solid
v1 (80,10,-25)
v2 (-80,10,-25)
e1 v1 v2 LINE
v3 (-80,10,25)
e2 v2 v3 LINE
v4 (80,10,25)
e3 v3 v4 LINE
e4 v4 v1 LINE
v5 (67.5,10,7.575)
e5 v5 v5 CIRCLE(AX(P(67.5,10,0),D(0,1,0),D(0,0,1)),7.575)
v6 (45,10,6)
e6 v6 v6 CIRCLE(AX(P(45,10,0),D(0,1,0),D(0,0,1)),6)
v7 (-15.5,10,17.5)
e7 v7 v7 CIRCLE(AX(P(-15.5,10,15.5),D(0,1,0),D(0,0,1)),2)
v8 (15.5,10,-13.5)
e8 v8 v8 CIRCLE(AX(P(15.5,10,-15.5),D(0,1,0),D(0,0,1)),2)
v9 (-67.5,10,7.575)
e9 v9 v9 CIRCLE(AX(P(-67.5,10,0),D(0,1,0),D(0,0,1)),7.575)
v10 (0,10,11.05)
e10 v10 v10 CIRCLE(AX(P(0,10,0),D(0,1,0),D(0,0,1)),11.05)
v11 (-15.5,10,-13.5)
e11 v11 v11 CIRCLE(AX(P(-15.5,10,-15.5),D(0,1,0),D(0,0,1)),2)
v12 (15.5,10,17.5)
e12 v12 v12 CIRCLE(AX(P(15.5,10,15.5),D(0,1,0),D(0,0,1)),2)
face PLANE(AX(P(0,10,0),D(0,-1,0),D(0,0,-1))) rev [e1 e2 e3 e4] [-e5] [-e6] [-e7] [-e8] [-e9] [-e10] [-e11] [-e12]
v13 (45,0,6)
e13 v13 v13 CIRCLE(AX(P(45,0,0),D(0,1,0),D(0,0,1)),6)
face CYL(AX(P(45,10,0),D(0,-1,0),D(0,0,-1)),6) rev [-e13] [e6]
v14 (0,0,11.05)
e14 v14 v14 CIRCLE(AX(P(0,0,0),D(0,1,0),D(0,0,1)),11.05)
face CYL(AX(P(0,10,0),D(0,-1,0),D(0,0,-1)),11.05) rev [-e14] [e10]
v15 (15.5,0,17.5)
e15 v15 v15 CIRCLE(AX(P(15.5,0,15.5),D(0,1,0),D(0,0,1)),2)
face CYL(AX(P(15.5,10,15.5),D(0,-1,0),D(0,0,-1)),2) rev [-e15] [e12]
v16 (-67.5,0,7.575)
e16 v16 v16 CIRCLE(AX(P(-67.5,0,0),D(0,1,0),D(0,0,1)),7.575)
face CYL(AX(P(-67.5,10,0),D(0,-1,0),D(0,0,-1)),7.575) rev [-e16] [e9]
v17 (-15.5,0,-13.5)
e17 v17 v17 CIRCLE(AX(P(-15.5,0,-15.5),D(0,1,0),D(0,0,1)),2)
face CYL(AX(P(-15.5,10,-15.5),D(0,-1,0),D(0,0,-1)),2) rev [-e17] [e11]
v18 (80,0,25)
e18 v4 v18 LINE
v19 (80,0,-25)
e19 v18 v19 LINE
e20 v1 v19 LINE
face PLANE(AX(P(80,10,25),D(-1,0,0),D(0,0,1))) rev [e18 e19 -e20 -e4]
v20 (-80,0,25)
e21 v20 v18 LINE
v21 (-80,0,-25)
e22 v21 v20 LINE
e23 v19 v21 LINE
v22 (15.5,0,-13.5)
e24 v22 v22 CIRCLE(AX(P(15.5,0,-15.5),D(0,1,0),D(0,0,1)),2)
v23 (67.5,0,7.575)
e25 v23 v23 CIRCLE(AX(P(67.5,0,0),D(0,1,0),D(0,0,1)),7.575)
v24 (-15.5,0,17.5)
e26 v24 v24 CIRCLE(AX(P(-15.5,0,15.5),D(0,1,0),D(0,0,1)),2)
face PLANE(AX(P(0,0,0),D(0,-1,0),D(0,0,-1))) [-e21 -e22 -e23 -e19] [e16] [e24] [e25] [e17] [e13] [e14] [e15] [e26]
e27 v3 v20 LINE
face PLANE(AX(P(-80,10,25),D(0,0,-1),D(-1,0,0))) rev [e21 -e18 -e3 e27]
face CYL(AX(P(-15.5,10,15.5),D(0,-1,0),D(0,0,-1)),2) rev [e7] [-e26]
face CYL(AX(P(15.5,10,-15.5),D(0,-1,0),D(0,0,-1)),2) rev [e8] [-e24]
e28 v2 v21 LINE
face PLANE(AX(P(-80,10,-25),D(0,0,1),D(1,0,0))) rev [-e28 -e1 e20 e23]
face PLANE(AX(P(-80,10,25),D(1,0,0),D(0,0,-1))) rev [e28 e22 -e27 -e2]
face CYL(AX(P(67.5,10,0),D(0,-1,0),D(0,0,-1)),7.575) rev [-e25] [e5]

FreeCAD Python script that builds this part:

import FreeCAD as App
import Part
import Sketcher
Q = App.Units.Quantity


def add_polygon(sketch, points):
    """Adds a closed chain of lines whose ends are joined by coincident constraints."""
    first, n = sketch.GeometryCount, len(points)
    for a, b in zip(points, points[1:] + points[:1]):
        sketch.addGeometry(Part.LineSegment(App.Vector(*a, 0), App.Vector(*b, 0)), False)
    for i in range(n):
        sketch.addConstraint(Sketcher.Constraint("Coincident", first + i, 2, first + (i + 1) % n, 1))

doc = App.newDocument("Part")
params = doc.addObject("Spreadsheet::Sheet", "Params")
for row, (alias, value) in enumerate([
    ("sketch1_diameter", "4 mm"),
    ("sketch1_diameter2", "12 mm"),
    ("sketch1_diameter3", "22.1 mm"),
    ("sketch1_diameter4", "15.15 mm"),
    ("sketch1_width", "160 mm"),
    ("pad1_length", "10 mm"),
], start=1):
    params.set(f"A{row}", alias)
    params.set(f"B{row}", "=" + value)
    params.setAlias(f"B{row}", alias)

body = doc.addObject("PartDesign::Body", "Body")

sketch1 = body.newObject("Sketcher::SketchObject", "Sketch")
sketch1.AttachmentSupport = (doc.getObject("XZ_Plane"), [""])
sketch1.MapMode = "FlatFace"
add_polygon(sketch1, [(-80, -25), (-80, 25), (80, 25), (80, -25)])
sketch1.addGeometry(Part.Circle(App.Vector(-15.5, 15.5, 0), App.Vector(0, 0, 1), 2), False)
sketch1.addGeometry(Part.Circle(App.Vector(15.5, 15.5, 0), App.Vector(0, 0, 1), 2), False)
sketch1.addGeometry(Part.Circle(App.Vector(-67.5, 0, 0), App.Vector(0, 0, 1), 7.575), False)
sketch1.addGeometry(Part.Circle(App.Vector(-15.5, -15.5, 0), App.Vector(0, 0, 1), 2), False)
sketch1.addGeometry(Part.Circle(App.Vector(0, 0, 0), App.Vector(0, 0, 1), 11.05), False)
sketch1.addGeometry(Part.Circle(App.Vector(45, 0, 0), App.Vector(0, 0, 1), 6), False)
sketch1.addGeometry(Part.Circle(App.Vector(67.5, 0, 0), App.Vector(0, 0, 1), 7.575), False)
sketch1.addGeometry(Part.Circle(App.Vector(15.5, -15.5, 0), App.Vector(0, 0, 1), 2), False)
sketch1.addConstraint([
    Sketcher.Constraint("Vertical", 0),
    Sketcher.Constraint("Horizontal", 1),
    Sketcher.Constraint("Vertical", 2),
    Sketcher.Constraint("Horizontal", 3),
    Sketcher.Constraint("Coincident", 8, 3, -1, 1),
    Sketcher.Constraint("Equal", 4, 5),
    Sketcher.Constraint("Equal", 5, 7),
    Sketcher.Constraint("Equal", 6, 10),
    Sketcher.Constraint("Equal", 7, 11),
    Sketcher.Constraint("Symmetric", 5, 3, 7, 3, -1, 1),
    Sketcher.Constraint("Symmetric", 6, 3, 10, 3, -1, 1),
    Sketcher.Constraint("Symmetric", 4, 3, 11, 3, -1, 1),
    Sketcher.Constraint("Symmetric", 0, 2, 2, 2, -1, 1),
    Sketcher.Constraint("Symmetric", 4, 3, 5, 3, -2),
    Sketcher.Constraint("PointOnObject", 6, 3, -1),
    Sketcher.Constraint("PointOnObject", 9, 3, -1),
    Sketcher.Constraint("Diameter", 4, Q("4 mm")),
    Sketcher.Constraint("Diameter", 9, Q("12 mm")),
    Sketcher.Constraint("Diameter", 8, Q("22.1 mm")),
    Sketcher.Constraint("Diameter", 6, Q("15.15 mm")),
    Sketcher.Constraint("DistanceX", 1, 1, 1, 2, Q("160 mm")),
    Sketcher.Constraint("DistanceY", 0, 1, 0, 2, Q("50 mm")),
    Sketcher.Constraint("DistanceX", -1, 1, 9, 3, Q("45 mm")),
    Sketcher.Constraint("DistanceX", 4, 3, 5, 3, Q("31 mm")),
    Sketcher.Constraint("DistanceX", 6, 3, 4, 3, Q("52 mm")),
    Sketcher.Constraint("DistanceY", 7, 3, 4, 3, Q("31 mm")),
])
sketch1.setExpression("Constraints[20]", "Params.sketch1_diameter")
sketch1.setExpression("Constraints[21]", "Params.sketch1_diameter2")
sketch1.setExpression("Constraints[22]", "Params.sketch1_diameter3")
sketch1.setExpression("Constraints[23]", "Params.sketch1_diameter4")
sketch1.setExpression("Constraints[24]", "Params.sketch1_width")
pad1 = body.newObject("PartDesign::Pad", "Pad")
pad1.Profile = sketch1
pad1.setExpression("Length", "Params.pad1_length")
pad1.Reversed = True

doc.recompute()
